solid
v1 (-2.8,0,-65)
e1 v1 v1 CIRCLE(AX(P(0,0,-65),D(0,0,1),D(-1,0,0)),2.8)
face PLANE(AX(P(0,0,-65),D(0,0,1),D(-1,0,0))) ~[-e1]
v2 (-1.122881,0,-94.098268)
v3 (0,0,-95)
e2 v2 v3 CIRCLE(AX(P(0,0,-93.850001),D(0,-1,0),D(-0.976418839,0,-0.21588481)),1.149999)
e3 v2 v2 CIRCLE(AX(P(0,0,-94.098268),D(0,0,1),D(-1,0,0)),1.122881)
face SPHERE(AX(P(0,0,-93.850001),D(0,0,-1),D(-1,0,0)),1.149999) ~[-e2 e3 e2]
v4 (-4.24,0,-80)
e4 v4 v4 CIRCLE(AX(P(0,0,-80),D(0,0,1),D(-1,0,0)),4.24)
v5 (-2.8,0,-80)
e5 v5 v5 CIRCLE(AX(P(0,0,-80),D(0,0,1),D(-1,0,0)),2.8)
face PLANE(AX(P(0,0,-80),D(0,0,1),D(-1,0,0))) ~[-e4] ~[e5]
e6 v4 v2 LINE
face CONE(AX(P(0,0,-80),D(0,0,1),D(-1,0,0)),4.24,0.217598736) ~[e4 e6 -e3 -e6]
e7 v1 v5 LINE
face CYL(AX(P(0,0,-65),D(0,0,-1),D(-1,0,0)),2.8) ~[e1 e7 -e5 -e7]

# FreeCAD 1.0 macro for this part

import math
import FreeCAD as App
import Part
import Sketcher
from FreeCAD import Vector

doc = App.newDocument("Part")
body = doc.addObject("PartDesign::Body", "Body")

# Sketch on XZ plane
sketch1 = doc.addObject("Sketcher::SketchObject", "Sketch")
body.addObject(sketch1)
sketch1.AttachmentSupport = (doc.XZ_Plane, [""])
sketch1.MapMode = "FlatFace"
sketch1.addGeometry(Part.LineSegment(Vector(0, 0, 0), Vector(-2.8, 0, 0)), False)
sketch1.addGeometry(Part.LineSegment(Vector(-2.8, 0, 0), Vector(-2.8, -15, 0)), False)
sketch1.addGeometry(Part.LineSegment(Vector(-2.8, -15, 0), Vector(-4.2, -15, 0)), False)
sketch1.addGeometry(Part.LineSegment(Vector(-4.2, -15, 0), Vector(-1.1, -29.1, 0)), False)
sketch1.addGeometry(Part.ArcOfCircle(Part.Circle(Vector(0, -28.9, 0), Vector(0, 0, 1), 1.1), math.radians(-168), math.radians(-90)), False)
sketch1.addGeometry(Part.LineSegment(Vector(0, -30, 0), Vector(0, 0, 0)), False)
sketch1.addConstraint(Sketcher.Constraint("Coincident", 0, 2, 1, 1))
sketch1.addConstraint(Sketcher.Constraint("Coincident", 1, 2, 2, 1))
sketch1.addConstraint(Sketcher.Constraint("Coincident", 2, 2, 3, 1))
sketch1.addConstraint(Sketcher.Constraint("Tangent", 3, 2, 4, 1))
sketch1.addConstraint(Sketcher.Constraint("Coincident", 4, 2, 5, 1))
sketch1.addConstraint(Sketcher.Constraint("Coincident", 5, 2, 0, 1))
sketch1.addConstraint(Sketcher.Constraint("Horizontal", 0))
sketch1.addConstraint(Sketcher.Constraint("Vertical", 1))
sketch1.addConstraint(Sketcher.Constraint("Horizontal", 2))
sketch1.addConstraint(Sketcher.Constraint("Vertical", 5))
sketch1.addConstraint(Sketcher.Constraint("Coincident", 5, 2, -1, 1))
sketch1.addConstraint(Sketcher.Constraint("PointOnObject", 4, 3, -2))
sketch1.addConstraint(Sketcher.Constraint("DistanceY", 1, 2, 1, 1, 15.0))
sketch1.addConstraint(Sketcher.Constraint("DistanceY", 5, 1, 5, 2, 30.0))
sketch1.addConstraint(Sketcher.Constraint("Radius", 4, 1.149999))
sketch1.addConstraint(Sketcher.Constraint("DistanceX", 0, 2, 0, 1, 2.8))
sketch1.addConstraint(Sketcher.Constraint("DistanceX", 2, 2, 2, 1, 1.44))
revolution = doc.addObject("PartDesign::Revolution", "Revolution")
body.addObject(revolution)
revolution.Profile = sketch1
revolution.ReferenceAxis = (sketch1, ["V_Axis"])
revolution.Angle = 360
body2 = doc.addObject("PartDesign::Body", "Body001")
doc.recompute()

body.Placement = App.Placement(Vector(0, 0, -65), App.Rotation(Vector(0, 0, 1), 0))
boolean = doc.addObject("PartDesign::Boolean", "Boolean")
body2.addObject(boolean)
boolean.Type = "Fuse"
boolean.addObjects([body])

doc.recompute()
